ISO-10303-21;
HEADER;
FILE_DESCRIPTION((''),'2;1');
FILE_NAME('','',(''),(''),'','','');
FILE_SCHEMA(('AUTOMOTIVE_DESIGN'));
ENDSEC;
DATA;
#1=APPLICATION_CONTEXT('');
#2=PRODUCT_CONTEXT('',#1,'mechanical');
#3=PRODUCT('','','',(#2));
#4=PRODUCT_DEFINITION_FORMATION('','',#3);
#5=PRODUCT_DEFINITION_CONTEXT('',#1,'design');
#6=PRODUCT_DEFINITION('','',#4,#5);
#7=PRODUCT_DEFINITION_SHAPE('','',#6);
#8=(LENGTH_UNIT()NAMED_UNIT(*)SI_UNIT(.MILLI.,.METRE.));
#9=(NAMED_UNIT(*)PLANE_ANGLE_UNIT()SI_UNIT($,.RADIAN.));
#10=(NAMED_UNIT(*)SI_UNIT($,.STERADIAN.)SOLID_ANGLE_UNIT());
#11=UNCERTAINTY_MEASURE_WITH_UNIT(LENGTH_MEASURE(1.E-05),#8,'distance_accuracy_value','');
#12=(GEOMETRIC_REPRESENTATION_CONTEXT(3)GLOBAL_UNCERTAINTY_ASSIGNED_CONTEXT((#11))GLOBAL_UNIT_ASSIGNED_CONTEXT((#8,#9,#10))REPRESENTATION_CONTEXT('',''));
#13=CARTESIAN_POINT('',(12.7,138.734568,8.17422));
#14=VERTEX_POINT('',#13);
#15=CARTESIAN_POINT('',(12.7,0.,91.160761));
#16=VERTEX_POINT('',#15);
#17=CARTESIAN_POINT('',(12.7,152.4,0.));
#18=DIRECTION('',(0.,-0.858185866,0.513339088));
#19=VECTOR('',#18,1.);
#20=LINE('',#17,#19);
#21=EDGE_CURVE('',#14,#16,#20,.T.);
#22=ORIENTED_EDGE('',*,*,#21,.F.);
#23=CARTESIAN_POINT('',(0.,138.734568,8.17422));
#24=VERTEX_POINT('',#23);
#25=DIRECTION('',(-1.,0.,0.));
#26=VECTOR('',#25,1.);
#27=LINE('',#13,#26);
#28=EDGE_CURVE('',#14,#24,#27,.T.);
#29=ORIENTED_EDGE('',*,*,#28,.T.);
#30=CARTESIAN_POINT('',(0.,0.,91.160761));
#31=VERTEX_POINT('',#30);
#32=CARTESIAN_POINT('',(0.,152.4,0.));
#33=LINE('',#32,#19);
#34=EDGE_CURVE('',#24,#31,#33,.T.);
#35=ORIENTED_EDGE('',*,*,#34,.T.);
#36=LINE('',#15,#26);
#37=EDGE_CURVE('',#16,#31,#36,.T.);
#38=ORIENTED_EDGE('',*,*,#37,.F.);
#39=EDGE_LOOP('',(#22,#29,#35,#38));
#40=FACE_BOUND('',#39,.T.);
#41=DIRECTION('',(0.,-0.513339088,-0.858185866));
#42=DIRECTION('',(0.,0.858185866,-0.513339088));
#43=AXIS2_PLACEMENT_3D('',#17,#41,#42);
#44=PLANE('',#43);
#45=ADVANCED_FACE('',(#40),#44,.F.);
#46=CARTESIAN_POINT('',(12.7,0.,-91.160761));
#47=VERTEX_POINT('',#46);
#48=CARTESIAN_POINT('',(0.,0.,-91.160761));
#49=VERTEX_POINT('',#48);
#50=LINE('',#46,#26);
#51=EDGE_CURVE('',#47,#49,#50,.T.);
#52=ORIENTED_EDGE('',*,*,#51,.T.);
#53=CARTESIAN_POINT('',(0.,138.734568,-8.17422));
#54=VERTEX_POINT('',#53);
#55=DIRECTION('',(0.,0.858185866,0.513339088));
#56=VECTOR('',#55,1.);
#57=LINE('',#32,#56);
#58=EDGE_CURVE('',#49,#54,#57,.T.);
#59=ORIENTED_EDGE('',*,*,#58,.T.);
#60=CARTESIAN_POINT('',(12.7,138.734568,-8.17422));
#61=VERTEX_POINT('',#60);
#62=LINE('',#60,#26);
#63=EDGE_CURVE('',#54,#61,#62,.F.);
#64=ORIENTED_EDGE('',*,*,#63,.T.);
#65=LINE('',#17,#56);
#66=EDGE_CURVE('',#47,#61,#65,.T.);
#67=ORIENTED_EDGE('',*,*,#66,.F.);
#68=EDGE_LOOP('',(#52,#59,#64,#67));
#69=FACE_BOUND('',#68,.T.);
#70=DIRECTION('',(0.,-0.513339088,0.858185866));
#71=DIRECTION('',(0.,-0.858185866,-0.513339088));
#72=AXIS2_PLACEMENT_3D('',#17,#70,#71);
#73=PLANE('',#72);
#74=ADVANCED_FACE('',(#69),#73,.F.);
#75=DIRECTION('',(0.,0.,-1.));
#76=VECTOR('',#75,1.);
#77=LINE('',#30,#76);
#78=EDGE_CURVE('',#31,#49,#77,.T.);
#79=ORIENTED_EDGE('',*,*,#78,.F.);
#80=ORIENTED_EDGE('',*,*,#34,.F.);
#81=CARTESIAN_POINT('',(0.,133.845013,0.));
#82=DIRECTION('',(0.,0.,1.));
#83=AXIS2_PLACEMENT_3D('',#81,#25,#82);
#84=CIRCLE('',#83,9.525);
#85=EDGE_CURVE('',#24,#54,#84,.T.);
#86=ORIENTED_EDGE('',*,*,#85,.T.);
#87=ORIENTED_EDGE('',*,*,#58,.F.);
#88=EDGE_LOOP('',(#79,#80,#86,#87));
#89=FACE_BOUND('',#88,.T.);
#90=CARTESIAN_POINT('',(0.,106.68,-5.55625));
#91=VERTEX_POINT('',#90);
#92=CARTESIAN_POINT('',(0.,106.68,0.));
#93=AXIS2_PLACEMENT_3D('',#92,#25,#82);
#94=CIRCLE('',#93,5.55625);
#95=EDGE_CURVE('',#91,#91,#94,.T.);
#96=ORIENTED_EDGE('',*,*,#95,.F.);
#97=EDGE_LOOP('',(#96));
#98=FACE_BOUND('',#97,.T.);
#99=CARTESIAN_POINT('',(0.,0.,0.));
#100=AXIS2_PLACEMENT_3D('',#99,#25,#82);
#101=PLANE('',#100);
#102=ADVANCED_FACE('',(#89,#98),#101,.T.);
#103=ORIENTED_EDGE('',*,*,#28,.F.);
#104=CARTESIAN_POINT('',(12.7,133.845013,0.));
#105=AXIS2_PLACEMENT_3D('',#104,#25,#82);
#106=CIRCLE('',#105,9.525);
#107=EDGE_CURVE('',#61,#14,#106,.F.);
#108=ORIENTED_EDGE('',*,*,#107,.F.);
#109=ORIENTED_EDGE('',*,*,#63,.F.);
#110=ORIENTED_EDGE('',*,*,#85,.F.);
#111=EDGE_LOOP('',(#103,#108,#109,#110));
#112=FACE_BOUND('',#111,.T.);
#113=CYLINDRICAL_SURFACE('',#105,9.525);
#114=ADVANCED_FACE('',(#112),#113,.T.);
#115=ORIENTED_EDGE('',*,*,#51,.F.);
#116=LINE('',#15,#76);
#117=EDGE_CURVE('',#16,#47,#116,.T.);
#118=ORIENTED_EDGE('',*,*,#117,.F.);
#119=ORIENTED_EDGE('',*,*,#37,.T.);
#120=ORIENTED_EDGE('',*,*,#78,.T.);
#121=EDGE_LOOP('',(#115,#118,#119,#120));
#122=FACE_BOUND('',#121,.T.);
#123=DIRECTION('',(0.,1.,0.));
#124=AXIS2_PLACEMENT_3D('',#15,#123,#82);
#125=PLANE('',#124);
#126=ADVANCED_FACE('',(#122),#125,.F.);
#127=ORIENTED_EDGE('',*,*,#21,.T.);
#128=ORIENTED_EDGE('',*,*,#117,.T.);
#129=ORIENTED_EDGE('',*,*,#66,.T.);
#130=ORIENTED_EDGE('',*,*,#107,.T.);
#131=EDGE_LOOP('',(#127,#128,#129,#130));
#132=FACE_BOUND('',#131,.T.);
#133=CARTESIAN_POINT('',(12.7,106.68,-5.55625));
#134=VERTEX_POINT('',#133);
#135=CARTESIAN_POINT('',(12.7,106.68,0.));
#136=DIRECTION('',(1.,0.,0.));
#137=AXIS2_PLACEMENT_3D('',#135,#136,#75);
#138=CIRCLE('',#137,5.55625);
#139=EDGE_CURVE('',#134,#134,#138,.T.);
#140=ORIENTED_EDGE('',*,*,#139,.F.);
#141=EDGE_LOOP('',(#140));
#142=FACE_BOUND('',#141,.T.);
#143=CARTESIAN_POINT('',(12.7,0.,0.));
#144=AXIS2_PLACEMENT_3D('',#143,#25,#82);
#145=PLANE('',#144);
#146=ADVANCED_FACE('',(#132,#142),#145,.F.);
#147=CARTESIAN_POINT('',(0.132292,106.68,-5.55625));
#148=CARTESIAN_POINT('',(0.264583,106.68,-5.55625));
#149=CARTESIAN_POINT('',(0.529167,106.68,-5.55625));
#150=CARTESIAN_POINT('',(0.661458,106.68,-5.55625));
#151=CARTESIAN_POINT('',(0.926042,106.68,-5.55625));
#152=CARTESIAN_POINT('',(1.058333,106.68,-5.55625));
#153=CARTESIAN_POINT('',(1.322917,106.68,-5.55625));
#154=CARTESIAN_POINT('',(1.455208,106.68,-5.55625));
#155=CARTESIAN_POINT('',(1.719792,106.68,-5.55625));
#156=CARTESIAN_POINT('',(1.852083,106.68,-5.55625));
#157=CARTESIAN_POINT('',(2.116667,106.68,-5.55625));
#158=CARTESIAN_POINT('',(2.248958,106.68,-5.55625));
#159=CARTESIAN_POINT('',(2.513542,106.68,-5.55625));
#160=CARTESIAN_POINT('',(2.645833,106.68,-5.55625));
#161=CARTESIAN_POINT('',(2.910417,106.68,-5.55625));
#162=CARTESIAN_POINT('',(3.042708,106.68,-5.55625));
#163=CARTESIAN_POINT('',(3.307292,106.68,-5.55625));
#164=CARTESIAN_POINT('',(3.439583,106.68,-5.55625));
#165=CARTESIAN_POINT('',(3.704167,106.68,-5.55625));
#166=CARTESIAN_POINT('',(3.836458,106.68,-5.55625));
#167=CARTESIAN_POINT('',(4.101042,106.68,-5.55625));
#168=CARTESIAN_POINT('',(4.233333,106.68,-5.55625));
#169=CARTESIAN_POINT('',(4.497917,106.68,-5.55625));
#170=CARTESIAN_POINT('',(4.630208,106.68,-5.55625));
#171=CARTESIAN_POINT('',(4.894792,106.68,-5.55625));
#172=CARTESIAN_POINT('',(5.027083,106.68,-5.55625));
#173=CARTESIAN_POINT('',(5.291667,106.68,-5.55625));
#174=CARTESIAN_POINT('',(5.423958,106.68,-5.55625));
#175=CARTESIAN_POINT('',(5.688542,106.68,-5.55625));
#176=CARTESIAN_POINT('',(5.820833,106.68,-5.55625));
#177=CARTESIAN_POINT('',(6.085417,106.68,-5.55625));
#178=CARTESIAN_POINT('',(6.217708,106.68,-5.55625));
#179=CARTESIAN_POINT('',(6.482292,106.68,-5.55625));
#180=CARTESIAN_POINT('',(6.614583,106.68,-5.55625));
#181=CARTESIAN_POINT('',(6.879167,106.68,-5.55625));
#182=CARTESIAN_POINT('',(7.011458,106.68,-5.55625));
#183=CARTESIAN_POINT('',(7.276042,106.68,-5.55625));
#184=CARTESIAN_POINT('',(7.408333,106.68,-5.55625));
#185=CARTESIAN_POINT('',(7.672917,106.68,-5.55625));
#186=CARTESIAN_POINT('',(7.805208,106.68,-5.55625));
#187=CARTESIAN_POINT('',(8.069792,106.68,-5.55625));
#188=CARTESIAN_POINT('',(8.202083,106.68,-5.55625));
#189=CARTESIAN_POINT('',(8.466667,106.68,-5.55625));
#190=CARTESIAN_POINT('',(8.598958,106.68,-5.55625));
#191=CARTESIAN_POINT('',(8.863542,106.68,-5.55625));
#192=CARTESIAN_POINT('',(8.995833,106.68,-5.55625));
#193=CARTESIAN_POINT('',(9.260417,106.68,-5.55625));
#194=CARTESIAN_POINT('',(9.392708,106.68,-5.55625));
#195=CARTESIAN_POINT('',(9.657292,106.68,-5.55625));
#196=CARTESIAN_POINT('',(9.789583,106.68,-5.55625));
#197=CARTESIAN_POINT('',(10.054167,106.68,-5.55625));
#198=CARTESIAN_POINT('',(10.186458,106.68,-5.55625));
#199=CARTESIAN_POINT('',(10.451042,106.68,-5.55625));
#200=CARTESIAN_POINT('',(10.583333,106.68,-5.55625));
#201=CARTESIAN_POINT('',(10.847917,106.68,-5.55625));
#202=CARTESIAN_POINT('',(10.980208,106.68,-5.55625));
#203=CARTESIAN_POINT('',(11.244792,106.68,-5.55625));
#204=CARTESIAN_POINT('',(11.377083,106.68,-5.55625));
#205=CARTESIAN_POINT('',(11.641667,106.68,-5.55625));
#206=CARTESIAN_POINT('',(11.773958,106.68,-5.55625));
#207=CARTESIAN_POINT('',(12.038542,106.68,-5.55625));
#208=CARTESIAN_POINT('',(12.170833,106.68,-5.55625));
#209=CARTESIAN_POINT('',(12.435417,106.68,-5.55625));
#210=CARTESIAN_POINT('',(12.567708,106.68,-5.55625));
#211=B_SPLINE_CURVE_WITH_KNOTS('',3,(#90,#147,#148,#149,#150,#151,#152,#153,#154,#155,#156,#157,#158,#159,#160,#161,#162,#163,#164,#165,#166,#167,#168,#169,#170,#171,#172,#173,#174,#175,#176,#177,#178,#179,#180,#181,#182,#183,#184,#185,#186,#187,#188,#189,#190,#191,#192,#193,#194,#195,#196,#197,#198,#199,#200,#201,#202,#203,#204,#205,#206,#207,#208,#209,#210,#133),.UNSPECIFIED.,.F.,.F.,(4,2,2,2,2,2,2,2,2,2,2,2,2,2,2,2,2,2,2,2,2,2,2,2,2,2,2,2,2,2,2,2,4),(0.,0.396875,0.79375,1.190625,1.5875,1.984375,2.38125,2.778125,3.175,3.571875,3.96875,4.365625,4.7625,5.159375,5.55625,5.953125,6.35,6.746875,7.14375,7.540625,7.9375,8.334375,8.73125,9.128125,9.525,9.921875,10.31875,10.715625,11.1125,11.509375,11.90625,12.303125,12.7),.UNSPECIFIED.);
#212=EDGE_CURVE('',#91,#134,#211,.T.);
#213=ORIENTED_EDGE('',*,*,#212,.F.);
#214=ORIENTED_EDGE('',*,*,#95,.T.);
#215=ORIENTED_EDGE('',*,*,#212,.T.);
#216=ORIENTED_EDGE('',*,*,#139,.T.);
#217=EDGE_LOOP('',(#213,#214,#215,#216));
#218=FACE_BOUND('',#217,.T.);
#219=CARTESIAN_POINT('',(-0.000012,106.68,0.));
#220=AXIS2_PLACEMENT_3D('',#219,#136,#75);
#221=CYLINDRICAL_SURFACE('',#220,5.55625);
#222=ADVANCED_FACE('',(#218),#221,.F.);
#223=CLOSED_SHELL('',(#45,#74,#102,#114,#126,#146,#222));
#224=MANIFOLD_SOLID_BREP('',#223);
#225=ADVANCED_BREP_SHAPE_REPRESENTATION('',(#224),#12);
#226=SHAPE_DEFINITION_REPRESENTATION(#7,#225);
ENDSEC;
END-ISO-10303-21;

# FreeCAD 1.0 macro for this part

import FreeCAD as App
import Part
import Sketcher
from FreeCAD import Vector
Q = App.Units.Quantity


def edges_at(feature, points):
    """Names of the edges that pass closest to the given points."""
    edges = feature.Shape.Edges
    near = lambda p: min(range(len(edges)), key=lambda i: edges[i].distToShape(Part.Vertex(*p))[0])
    return sorted({f"Edge{near(p) + 1}" for p in points})


def add_polygon(sketch, points):
    """Adds a closed chain of lines whose ends are joined by coincident constraints."""
    first, n = sketch.GeometryCount, len(points)
    for a, b in zip(points, points[1:] + points[:1]):
        sketch.addGeometry(Part.LineSegment(App.Vector(*a, 0), App.Vector(*b, 0)), False)
    for i in range(n):
        sketch.addConstraint(Sketcher.Constraint("Coincident", first + i, 2, first + (i + 1) % n, 1))

doc = App.newDocument("Part")
body = doc.addObject("PartDesign::Body", "Body")

sketch1 = doc.addObject("Sketcher::SketchObject", "Sketch")
body.addObject(sketch1)
sketch1.AttachmentSupport = (doc.YZ_Plane, [""])
sketch1.MapMode = "FlatFace"
add_polygon(sketch1, [(152.4, 0), (0, 91.160761), (0, -91.160761)])
sketch1.addConstraint([
    Sketcher.Constraint("Vertical", 1),
    Sketcher.Constraint("Symmetric", 0, 2, 1, 2, -1, 1),
    Sketcher.Constraint("PointOnObject", 2, 2, -1),
    Sketcher.Constraint("DistanceX", -1, 1, 2, 2, Q("6 in")),
    Sketcher.Constraint("Distance", 0, Q("177.583908 mm")),
])
pad1 = doc.addObject("PartDesign::Pad", "Pad")
body.addObject(pad1)
pad1.Profile = sketch1
pad1.Length = Q("0.5 in")
doc.recompute()

fillet = doc.addObject("PartDesign::Fillet", "Fillet")
body.addObject(fillet)
fillet.Base = (pad1, edges_at(pad1, [(6.35, 152.4, 0)]))
fillet.Radius = Q("0.375 in")

sketch2 = doc.addObject("Sketcher::SketchObject", "Sketch001")
body.addObject(sketch2)
sketch2.AttachmentSupport = (doc.YZ_Plane, [""])
sketch2.MapMode = "FlatFace"
sketch2.addGeometry(Part.Circle(Vector(106.68, 0, 0), Vector(0, 0, 1), 5.55625), False)
sketch2.addConstraint([
    Sketcher.Constraint("PointOnObject", 0, 3, -1),
    Sketcher.Constraint("Diameter", 0, Q("0.4375 in")),
    Sketcher.Constraint("DistanceX", -1, 1, 0, 3, Q("4.2 in")),
])
pocket1 = doc.addObject("PartDesign::Pocket", "Pocket")
body.addObject(pocket1)
pocket1.Profile = sketch2
pocket1.Type = "ThroughAll"
pocket1.Midplane = True

doc.recompute()
